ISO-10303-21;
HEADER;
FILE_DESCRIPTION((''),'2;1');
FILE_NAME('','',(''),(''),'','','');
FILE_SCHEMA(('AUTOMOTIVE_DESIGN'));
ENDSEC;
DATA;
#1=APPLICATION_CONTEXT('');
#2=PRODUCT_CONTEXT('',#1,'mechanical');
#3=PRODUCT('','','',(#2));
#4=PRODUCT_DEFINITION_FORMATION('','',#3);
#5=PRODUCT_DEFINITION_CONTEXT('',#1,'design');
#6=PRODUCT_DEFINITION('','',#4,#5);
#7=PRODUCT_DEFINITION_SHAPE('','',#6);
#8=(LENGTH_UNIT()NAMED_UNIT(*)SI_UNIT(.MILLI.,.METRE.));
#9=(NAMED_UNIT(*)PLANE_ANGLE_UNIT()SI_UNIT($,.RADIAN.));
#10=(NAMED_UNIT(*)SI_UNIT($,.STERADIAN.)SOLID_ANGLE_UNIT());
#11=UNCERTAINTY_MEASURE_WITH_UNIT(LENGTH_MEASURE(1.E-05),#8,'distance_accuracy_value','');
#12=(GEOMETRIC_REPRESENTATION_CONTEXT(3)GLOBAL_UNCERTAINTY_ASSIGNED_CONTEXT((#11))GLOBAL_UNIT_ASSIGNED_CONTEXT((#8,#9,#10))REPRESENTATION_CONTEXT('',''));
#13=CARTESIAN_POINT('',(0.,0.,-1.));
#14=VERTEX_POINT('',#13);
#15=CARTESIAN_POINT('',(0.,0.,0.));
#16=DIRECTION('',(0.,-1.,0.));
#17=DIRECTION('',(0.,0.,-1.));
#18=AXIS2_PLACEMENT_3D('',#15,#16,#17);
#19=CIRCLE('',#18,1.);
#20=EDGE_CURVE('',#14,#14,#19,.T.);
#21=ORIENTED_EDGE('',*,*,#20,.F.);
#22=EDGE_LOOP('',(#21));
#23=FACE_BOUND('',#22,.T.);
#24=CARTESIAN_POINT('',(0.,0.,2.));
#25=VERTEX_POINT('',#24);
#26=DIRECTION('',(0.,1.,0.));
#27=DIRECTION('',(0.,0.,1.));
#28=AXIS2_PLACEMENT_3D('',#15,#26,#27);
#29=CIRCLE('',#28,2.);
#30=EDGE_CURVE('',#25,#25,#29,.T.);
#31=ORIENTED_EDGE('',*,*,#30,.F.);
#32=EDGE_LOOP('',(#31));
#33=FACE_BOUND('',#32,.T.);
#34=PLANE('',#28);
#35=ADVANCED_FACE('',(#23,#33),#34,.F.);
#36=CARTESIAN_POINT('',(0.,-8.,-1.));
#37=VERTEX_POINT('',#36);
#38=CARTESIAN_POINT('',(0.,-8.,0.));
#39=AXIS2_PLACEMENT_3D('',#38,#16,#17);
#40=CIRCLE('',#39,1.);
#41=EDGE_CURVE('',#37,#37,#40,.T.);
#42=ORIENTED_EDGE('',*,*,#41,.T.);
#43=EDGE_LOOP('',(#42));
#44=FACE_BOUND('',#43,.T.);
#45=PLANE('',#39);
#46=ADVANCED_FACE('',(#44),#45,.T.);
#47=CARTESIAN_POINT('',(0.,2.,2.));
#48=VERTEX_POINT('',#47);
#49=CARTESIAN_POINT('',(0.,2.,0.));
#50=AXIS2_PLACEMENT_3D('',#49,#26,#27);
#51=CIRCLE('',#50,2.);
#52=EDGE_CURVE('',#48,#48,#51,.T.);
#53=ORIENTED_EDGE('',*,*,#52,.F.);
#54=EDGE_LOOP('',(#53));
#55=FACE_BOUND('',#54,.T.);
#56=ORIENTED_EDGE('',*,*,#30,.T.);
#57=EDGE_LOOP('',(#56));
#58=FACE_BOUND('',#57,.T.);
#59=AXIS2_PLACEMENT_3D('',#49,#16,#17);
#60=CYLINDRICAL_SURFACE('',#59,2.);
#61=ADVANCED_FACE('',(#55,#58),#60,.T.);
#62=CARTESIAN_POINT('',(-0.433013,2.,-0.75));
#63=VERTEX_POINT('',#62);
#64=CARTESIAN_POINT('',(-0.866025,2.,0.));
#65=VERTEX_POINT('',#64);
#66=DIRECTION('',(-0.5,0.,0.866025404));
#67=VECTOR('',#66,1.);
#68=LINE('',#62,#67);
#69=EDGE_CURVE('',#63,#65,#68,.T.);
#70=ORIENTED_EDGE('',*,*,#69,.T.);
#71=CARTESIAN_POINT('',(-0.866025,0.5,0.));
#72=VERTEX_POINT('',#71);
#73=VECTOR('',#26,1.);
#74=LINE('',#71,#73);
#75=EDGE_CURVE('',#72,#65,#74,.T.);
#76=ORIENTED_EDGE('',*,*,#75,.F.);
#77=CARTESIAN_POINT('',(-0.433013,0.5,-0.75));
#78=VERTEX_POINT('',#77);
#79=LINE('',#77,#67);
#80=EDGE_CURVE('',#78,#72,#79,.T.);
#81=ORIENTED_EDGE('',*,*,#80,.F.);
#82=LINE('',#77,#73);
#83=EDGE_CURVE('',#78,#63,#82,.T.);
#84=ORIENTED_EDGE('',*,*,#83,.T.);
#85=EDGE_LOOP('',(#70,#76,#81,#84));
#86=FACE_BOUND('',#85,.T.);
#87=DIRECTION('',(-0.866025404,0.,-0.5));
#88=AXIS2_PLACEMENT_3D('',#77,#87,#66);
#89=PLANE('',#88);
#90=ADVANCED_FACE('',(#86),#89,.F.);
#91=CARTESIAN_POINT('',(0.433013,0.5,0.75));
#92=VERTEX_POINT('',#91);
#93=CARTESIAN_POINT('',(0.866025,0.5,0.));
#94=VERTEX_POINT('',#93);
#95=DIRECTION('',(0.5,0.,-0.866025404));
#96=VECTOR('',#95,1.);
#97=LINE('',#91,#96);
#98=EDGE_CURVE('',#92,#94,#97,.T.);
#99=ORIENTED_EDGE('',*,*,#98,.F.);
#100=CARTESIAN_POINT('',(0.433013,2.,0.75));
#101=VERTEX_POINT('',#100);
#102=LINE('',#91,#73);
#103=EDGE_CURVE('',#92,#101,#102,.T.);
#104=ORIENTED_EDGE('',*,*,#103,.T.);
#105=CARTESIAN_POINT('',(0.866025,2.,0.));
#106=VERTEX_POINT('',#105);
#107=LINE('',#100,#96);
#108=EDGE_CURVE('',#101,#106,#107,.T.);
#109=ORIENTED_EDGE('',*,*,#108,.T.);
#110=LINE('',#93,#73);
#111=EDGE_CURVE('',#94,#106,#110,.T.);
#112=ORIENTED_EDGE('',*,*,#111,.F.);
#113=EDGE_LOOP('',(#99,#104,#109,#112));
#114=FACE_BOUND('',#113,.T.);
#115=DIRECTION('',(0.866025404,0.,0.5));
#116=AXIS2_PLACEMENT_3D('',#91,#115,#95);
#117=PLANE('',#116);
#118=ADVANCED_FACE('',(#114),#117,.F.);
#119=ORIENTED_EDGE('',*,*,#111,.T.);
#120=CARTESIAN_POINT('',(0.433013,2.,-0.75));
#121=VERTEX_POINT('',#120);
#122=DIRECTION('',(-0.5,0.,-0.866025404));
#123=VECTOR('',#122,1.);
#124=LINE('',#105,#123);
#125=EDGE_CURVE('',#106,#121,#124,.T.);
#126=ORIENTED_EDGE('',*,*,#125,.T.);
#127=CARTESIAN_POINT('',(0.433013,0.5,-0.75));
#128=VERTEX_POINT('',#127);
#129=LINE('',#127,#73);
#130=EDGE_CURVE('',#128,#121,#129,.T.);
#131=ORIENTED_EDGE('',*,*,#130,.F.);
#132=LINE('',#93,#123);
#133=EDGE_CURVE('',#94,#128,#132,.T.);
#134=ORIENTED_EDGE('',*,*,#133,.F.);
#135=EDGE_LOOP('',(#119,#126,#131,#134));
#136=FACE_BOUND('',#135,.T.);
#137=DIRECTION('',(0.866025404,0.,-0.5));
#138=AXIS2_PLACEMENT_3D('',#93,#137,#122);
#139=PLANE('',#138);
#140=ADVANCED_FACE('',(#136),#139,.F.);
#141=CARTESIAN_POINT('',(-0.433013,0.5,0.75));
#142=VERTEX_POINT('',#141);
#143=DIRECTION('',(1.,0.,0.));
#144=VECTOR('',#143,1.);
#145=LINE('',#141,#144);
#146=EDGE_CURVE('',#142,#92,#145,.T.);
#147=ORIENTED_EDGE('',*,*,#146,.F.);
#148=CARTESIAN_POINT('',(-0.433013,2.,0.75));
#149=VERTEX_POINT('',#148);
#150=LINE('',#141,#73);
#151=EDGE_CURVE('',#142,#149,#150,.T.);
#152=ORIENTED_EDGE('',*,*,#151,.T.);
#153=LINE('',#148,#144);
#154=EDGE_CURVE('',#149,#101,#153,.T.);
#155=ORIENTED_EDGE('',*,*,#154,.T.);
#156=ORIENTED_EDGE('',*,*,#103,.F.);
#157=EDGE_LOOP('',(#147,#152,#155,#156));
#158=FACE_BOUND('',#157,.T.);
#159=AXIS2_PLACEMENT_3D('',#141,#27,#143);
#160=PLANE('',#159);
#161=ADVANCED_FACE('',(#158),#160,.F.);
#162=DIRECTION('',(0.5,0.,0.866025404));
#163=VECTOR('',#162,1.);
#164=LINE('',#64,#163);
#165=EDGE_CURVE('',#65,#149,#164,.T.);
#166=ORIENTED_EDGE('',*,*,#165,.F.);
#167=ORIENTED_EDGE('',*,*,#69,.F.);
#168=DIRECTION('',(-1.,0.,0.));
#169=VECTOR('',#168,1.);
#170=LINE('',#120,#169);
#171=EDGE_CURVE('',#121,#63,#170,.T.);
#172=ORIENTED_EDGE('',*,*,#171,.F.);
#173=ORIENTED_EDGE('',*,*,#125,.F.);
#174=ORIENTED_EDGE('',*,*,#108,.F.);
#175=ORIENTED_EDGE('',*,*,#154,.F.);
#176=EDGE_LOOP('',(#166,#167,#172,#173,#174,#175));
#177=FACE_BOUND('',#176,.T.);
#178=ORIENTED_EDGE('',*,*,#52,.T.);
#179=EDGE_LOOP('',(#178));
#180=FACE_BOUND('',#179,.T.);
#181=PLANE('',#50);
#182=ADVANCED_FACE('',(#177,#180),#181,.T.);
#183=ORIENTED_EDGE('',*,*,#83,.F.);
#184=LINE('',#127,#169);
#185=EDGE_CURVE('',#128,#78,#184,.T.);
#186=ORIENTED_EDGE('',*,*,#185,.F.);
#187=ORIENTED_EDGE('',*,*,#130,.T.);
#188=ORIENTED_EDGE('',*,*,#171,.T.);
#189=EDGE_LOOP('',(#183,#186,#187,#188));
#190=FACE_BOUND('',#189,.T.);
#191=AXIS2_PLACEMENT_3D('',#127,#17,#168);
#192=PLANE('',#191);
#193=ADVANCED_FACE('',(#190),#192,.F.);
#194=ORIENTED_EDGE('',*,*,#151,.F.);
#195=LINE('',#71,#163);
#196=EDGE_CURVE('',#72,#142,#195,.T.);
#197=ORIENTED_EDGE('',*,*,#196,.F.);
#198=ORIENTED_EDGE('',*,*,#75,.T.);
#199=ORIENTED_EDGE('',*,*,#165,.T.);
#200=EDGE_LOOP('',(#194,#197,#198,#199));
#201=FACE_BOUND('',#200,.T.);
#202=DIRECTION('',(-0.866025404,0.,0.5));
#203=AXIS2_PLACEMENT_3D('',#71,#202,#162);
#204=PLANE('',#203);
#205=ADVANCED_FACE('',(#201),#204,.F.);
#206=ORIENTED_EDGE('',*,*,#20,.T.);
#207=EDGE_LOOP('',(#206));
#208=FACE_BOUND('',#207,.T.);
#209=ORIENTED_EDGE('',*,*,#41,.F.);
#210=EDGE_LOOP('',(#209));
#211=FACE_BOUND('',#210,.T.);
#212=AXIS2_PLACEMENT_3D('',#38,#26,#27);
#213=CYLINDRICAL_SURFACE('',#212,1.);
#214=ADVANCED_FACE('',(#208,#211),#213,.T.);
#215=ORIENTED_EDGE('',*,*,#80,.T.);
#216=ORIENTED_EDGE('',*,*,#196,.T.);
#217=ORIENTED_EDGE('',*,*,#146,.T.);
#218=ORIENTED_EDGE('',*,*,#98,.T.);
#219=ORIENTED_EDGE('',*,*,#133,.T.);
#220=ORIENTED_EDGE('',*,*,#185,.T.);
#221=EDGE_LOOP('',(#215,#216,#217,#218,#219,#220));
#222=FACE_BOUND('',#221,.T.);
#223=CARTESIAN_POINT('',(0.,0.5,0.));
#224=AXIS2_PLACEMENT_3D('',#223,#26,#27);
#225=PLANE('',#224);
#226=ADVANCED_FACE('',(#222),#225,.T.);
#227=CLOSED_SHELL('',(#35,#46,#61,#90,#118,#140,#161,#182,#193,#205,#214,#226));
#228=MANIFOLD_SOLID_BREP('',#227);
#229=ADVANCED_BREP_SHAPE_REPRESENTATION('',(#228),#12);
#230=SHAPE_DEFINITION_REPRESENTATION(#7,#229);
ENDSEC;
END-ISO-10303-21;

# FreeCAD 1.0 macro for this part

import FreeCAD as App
import Part
import Sketcher

V = App.Vector
Q = App.Units.Quantity

doc = App.newDocument("Part")
body = doc.addObject("PartDesign::Body", "Body")

# Sketch on XZ plane
sketch1 = body.newObject("Sketcher::SketchObject", "Sketch")
sketch1.AttachmentSupport = (doc.getObject("XZ_Plane"), [""])
sketch1.MapMode = "FlatFace"
sketch1.addGeometry(Part.Circle(V(0, 0, 0), V(0, 0, 1), 2), False)
sketch1.addConstraint(Sketcher.Constraint("Coincident", 0, 3, -1, 1))
sketch1.addConstraint(Sketcher.Constraint("Diameter", 0, 4.0))
pad1 = body.newObject("PartDesign::Pad", "Pad")
pad1.Profile = sketch1
pad1.Length = 2
pad1.Reversed = True

# Sketch on XZ plane
sketch2 = body.newObject("Sketcher::SketchObject", "Sketch001")
sketch2.AttachmentSupport = (doc.getObject("XZ_Plane"), [""])
sketch2.MapMode = "FlatFace"
sketch2.AttachmentOffset = App.Placement(V(0, 0, -2), App.Rotation())
sketch2.addGeometry(Part.LineSegment(V(0.9, 0, 0), V(0.4, -0.8, 0)), False)
sketch2.addGeometry(Part.LineSegment(V(0.4, -0.8, 0), V(-0.4, -0.8, 0)), False)
sketch2.addGeometry(Part.LineSegment(V(-0.4, -0.8, 0), V(-0.9, 0, 0)), False)
sketch2.addGeometry(Part.LineSegment(V(-0.9, 0, 0), V(-0.4, 0.8, 0)), False)
sketch2.addGeometry(Part.LineSegment(V(-0.4, 0.8, 0), V(0.4, 0.8, 0)), False)
sketch2.addGeometry(Part.LineSegment(V(0.4, 0.8, 0), V(0.9, 0, 0)), False)
sketch2.addConstraint(Sketcher.Constraint("Coincident", 0, 2, 1, 1))
sketch2.addConstraint(Sketcher.Constraint("Coincident", 1, 2, 2, 1))
sketch2.addConstraint(Sketcher.Constraint("Coincident", 2, 2, 3, 1))
sketch2.addConstraint(Sketcher.Constraint("Coincident", 3, 2, 4, 1))
sketch2.addConstraint(Sketcher.Constraint("Coincident", 4, 2, 5, 1))
sketch2.addConstraint(Sketcher.Constraint("Coincident", 5, 2, 0, 1))
sketch2.addConstraint(Sketcher.Constraint("Horizontal", 1))
sketch2.addConstraint(Sketcher.Constraint("Horizontal", 4))
sketch2.addConstraint(Sketcher.Constraint("Symmetric", 0, 2, 3, 2, -1, 1))
sketch2.addConstraint(Sketcher.Constraint("Symmetric", 2, 2, 5, 2, -1, 1))
sketch2.addConstraint(Sketcher.Constraint("PointOnObject", 2, 2, -1))
sketch2.addConstraint(Sketcher.Constraint("Parallel", 2, 5))
sketch2.addConstraint(Sketcher.Constraint("Vertical", 1, 2, 3, 2))
sketch2.addConstraint(Sketcher.Constraint("Angle", 0, Q("-120 deg")))
sketch2.addConstraint(Sketcher.Constraint("DistanceY", 1, 2, 3, 2, 1.5))
sketch2.addConstraint(Sketcher.Constraint("DistanceX", 1, 2, 1, 1, 0.866025))
pocket1 = body.newObject("PartDesign::Pocket", "Pocket")
pocket1.Profile = sketch2
pocket1.Length = 1.5
pocket1.Reversed = True

# Sketch on XZ plane
sketch3 = body.newObject("Sketcher::SketchObject", "Sketch002")
sketch3.AttachmentSupport = (doc.getObject("XZ_Plane"), [""])
sketch3.MapMode = "FlatFace"
sketch3.addGeometry(Part.Circle(V(0, 0, 0), V(0, 0, 1), 1), False)
sketch3.addConstraint(Sketcher.Constraint("Coincident", 0, 3, -1, 1))
sketch3.addConstraint(Sketcher.Constraint("Diameter", 0, 2.0))
pad2 = body.newObject("PartDesign::Pad", "Pad001")
pad2.Profile = sketch3
pad2.Length = 8

doc.recompute()
